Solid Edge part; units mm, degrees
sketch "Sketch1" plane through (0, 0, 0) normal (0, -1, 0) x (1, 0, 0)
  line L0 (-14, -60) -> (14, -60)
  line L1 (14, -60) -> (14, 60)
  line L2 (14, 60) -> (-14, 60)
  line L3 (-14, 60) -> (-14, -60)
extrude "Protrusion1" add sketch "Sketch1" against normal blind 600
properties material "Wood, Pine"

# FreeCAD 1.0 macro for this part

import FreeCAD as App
import Part
import Sketcher
from FreeCAD import Vector
Q = App.Units.Quantity

doc = App.newDocument("Part")
body = doc.addObject("PartDesign::Body", "Body")

# Sketch on XZ plane
sketch1 = doc.addObject("Sketcher::SketchObject", "Sketch")
body.addObject(sketch1)
sketch1.AttachmentSupport = (doc.XZ_Plane, [""])
sketch1.MapMode = "FlatFace"
sketch1.addGeometry([
    Part.LineSegment(Vector(-14, 60, 0), Vector(-14, -60, 0)),
    Part.LineSegment(Vector(-14, -60, 0), Vector(14, -60, 0)),
    Part.LineSegment(Vector(14, -60, 0), Vector(14, 60, 0)),
    Part.LineSegment(Vector(14, 60, 0), Vector(-14, 60, 0)),
], False)
sketch1.addConstraint([
    Sketcher.Constraint("Coincident", 0, 2, 1, 1),
    Sketcher.Constraint("Coincident", 1, 2, 2, 1),
    Sketcher.Constraint("Coincident", 2, 2, 3, 1),
    Sketcher.Constraint("Coincident", 3, 2, 0, 1),
    Sketcher.Constraint("Vertical", 0),
    Sketcher.Constraint("Horizontal", 1),
    Sketcher.Constraint("Vertical", 2),
    Sketcher.Constraint("Horizontal", 3),
    Sketcher.Constraint("Symmetric", 0, 2, 2, 2, -1, 1),
    Sketcher.Constraint("DistanceX", 1, 1, 1, 2, Q("28 mm")),
    Sketcher.Constraint("DistanceY", 0, 2, 0, 1, Q("120 mm")),
])
pad1 = doc.addObject("PartDesign::Pad", "Pad")
body.addObject(pad1)
pad1.Profile = sketch1
pad1.Length = 600
pad1.Reversed = True

doc.recompute()
